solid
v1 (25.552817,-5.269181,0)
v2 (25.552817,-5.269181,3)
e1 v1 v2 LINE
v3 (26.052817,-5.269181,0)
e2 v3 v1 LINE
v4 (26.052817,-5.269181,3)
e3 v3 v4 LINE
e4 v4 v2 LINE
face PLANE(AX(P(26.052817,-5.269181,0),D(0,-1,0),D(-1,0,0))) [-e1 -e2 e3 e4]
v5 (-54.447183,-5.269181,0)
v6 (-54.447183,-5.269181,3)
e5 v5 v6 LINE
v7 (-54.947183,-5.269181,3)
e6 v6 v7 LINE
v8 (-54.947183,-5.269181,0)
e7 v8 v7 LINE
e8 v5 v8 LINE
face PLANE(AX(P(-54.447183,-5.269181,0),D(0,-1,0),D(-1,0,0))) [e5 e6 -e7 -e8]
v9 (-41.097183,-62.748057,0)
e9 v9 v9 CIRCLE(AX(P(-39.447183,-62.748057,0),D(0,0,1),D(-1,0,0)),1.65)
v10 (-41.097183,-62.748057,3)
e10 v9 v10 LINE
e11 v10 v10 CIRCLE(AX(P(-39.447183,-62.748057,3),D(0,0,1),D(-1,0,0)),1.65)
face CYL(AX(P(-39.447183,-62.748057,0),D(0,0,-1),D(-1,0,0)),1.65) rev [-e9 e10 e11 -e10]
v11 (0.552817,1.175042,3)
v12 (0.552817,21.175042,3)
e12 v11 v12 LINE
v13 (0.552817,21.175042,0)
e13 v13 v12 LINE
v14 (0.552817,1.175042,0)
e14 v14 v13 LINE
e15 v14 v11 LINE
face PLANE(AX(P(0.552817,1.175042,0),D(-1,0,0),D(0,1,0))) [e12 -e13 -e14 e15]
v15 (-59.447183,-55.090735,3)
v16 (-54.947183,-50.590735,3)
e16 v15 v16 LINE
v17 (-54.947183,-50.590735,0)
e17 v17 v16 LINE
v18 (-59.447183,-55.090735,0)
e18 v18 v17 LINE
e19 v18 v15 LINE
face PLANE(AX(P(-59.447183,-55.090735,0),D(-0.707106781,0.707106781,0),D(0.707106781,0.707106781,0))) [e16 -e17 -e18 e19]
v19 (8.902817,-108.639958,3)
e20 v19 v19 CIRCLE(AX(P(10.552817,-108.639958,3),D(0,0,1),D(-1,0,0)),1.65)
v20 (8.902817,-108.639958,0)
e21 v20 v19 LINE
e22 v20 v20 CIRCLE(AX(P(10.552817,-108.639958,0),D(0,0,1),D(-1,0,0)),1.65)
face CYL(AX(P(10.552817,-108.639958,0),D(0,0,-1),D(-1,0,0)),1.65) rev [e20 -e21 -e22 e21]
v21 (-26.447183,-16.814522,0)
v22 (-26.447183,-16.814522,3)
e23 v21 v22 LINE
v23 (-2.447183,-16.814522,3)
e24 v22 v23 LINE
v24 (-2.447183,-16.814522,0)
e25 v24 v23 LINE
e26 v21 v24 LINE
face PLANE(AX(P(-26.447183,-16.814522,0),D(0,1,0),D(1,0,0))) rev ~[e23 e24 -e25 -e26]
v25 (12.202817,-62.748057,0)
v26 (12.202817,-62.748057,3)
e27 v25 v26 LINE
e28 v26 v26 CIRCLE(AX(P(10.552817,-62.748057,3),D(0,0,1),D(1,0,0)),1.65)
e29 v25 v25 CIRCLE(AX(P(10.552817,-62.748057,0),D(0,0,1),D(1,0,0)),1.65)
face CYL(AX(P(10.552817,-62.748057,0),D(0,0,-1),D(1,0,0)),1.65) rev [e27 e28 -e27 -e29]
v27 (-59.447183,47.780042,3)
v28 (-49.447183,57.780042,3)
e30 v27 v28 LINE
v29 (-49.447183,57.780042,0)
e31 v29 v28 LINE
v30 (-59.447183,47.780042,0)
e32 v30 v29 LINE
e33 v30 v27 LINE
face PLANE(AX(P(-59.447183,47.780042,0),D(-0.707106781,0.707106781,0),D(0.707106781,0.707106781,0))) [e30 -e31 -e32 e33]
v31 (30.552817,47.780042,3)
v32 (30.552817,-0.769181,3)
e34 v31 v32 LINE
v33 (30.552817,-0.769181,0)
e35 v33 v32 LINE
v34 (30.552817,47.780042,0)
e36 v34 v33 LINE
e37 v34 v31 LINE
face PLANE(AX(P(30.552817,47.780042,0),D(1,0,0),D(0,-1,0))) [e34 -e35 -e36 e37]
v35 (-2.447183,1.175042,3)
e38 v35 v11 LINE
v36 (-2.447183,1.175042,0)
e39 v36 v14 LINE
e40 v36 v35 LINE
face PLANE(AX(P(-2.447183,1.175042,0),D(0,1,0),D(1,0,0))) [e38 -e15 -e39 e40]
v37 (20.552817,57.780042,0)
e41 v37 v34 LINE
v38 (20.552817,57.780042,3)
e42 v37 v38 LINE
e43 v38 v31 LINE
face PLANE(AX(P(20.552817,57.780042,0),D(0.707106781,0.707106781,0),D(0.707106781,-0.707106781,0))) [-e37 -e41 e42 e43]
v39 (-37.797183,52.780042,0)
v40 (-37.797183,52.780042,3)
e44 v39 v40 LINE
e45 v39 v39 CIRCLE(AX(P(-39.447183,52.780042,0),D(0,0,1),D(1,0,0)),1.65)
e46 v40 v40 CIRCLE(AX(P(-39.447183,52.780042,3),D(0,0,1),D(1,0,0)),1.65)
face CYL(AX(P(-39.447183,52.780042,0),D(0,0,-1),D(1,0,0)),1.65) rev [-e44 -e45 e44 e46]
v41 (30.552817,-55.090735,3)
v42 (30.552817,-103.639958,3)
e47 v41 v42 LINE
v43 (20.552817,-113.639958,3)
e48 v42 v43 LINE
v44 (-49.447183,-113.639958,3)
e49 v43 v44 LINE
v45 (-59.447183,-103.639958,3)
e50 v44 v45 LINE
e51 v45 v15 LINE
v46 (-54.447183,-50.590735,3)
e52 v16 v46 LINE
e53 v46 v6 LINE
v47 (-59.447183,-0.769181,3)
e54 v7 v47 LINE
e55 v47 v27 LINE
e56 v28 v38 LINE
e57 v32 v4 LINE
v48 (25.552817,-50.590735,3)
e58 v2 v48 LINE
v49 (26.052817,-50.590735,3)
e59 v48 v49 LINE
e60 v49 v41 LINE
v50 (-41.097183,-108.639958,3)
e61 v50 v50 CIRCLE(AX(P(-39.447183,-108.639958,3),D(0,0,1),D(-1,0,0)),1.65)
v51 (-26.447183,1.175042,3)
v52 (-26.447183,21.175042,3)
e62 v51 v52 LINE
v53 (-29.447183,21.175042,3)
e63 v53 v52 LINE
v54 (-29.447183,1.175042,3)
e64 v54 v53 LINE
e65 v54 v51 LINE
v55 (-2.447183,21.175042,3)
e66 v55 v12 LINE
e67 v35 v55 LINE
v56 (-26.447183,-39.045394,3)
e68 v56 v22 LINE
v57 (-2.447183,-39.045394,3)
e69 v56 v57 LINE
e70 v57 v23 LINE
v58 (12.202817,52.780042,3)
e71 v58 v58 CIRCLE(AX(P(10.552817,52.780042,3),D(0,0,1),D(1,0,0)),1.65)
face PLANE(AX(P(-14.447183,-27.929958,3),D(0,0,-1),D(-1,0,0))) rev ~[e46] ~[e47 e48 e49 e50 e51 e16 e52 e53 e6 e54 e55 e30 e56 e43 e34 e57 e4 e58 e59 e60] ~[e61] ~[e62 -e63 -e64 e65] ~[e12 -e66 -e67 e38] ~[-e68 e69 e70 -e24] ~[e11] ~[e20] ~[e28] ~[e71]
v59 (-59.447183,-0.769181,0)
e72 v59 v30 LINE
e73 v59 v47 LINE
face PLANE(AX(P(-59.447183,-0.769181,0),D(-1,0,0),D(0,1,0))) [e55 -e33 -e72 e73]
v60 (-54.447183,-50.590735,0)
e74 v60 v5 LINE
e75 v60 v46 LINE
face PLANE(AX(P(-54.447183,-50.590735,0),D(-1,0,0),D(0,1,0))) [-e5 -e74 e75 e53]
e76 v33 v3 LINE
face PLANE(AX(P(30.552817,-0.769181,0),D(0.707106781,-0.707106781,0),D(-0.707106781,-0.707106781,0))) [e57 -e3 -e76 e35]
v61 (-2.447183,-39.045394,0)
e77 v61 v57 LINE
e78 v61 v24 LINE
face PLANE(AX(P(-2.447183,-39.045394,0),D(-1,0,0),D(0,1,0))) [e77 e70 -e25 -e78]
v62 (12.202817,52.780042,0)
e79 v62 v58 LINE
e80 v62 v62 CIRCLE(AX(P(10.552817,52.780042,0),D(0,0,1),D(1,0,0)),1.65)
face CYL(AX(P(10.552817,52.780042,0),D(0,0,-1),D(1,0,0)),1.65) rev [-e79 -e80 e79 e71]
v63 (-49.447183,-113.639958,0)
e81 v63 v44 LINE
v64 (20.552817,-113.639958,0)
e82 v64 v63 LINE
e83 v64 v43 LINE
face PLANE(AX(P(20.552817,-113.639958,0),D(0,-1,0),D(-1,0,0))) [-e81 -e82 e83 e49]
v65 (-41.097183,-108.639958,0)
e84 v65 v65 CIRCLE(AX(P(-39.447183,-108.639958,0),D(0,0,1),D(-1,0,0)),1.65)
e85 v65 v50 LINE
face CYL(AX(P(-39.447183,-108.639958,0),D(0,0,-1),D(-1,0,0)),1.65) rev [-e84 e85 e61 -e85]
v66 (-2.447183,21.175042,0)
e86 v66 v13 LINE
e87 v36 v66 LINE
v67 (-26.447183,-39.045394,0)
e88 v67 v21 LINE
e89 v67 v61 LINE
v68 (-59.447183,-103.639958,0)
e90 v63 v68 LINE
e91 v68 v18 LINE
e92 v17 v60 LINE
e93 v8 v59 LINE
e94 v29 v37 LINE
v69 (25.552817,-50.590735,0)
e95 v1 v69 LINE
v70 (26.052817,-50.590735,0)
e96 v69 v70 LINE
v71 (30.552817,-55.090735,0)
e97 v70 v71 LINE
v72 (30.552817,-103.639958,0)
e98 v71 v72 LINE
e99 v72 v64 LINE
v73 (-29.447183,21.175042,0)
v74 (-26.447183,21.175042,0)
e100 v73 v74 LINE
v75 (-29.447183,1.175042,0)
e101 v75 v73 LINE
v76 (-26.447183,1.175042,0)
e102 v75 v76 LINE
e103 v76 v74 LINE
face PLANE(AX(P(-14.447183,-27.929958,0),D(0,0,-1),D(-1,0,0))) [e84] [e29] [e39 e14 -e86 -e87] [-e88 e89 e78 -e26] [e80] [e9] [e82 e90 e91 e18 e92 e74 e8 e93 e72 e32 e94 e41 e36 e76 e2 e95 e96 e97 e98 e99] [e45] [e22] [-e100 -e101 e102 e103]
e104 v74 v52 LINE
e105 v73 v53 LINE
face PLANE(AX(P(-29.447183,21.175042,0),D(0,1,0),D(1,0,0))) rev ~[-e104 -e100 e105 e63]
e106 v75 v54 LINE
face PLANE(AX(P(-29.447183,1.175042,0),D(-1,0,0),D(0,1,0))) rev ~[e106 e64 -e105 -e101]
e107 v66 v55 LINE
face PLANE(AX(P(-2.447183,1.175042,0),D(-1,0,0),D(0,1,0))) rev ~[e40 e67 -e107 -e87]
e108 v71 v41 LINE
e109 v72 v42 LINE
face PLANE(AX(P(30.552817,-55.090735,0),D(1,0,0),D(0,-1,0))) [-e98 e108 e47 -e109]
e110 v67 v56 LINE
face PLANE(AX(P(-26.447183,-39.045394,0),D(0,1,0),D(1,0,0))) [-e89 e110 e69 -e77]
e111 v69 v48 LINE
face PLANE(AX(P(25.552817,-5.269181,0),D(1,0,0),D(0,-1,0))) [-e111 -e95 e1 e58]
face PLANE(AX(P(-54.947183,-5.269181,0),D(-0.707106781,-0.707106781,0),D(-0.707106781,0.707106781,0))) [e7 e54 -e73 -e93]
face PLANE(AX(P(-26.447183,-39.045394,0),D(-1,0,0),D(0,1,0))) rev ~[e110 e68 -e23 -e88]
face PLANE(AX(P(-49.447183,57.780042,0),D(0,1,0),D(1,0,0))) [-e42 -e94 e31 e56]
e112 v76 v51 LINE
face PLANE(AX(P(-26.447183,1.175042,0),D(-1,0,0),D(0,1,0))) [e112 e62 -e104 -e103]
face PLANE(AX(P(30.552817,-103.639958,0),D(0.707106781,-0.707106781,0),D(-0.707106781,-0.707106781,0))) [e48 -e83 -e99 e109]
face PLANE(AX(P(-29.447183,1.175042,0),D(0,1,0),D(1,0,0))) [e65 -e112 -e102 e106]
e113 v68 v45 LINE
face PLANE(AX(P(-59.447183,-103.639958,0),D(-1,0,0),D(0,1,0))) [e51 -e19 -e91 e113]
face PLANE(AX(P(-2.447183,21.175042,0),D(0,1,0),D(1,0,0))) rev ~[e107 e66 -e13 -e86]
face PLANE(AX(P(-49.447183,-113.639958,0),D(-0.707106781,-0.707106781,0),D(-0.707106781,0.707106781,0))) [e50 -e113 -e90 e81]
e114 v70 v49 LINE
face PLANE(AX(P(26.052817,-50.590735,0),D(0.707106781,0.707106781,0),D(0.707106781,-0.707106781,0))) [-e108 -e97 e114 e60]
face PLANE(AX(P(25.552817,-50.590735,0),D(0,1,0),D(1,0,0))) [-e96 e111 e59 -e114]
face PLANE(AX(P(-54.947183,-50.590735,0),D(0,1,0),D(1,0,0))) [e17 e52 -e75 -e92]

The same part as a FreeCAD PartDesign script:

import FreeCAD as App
import Part
import Sketcher
from FreeCAD import Vector
Q = App.Units.Quantity

doc = App.newDocument("Part")
body = doc.addObject("PartDesign::Body", "Body")

sketch1 = body.newObject("Sketcher::SketchObject", "Sketch")
sketch1.AttachmentSupport = (doc.getObject("XY_Plane"), [""])
sketch1.MapMode = "FlatFace"
sketch1.addGeometry([
    Part.LineSegment(Vector(-49.4, 57.8, 0), Vector(-59.4, 47.8, 0)),
    Part.LineSegment(Vector(-59.4, 47.8, 0), Vector(-59.4, -0.8, 0)),
    Part.LineSegment(Vector(-59.4, -0.8, 0), Vector(-54.9, -5.3, 0)),
    Part.LineSegment(Vector(-54.9, -5.3, 0), Vector(-54.4, -5.3, 0)),
    Part.LineSegment(Vector(-54.4, -5.3, 0), Vector(-54.4, -50.6, 0)),
    Part.LineSegment(Vector(-54.4, -50.6, 0), Vector(-54.9, -50.6, 0)),
    Part.LineSegment(Vector(-54.9, -50.6, 0), Vector(-59.4, -55.1, 0)),
    Part.LineSegment(Vector(-59.4, -55.1, 0), Vector(-59.4, -103.6, 0)),
    Part.LineSegment(Vector(-59.4, -103.6, 0), Vector(-49.4, -113.6, 0)),
    Part.LineSegment(Vector(-49.4, -113.6, 0), Vector(20.6, -113.6, 0)),
    Part.LineSegment(Vector(20.6, -113.6, 0), Vector(30.6, -103.6, 0)),
    Part.LineSegment(Vector(30.6, -103.6, 0), Vector(30.6, -55.1, 0)),
    Part.LineSegment(Vector(30.6, -55.1, 0), Vector(26.1, -50.6, 0)),
    Part.LineSegment(Vector(26.1, -50.6, 0), Vector(25.6, -50.6, 0)),
    Part.LineSegment(Vector(25.6, -50.6, 0), Vector(25.6, -5.3, 0)),
    Part.LineSegment(Vector(25.6, -5.3, 0), Vector(26.1, -5.3, 0)),
    Part.LineSegment(Vector(26.1, -5.3, 0), Vector(30.6, -0.8, 0)),
    Part.LineSegment(Vector(30.6, -0.8, 0), Vector(30.6, 47.8, 0)),
    Part.LineSegment(Vector(30.6, 47.8, 0), Vector(20.6, 57.8, 0)),
    Part.LineSegment(Vector(20.6, 57.8, 0), Vector(-49.4, 57.8, 0)),
    Part.Circle(Vector(10.6, -108.6, 0), Vector(0, 0, 1), 1.6),
    Part.Circle(Vector(10.6, -62.7, 0), Vector(0, 0, 1), 1.6),
    Part.Circle(Vector(-39.4, -108.6, 0), Vector(0, 0, 1), 1.6),
    Part.Circle(Vector(-39.4, -62.7, 0), Vector(0, 0, 1), 1.6),
    Part.LineSegment(Vector(-2.4, 1.2, 0), Vector(-2.4, 21.2, 0)),
    Part.LineSegment(Vector(-2.4, 21.2, 0), Vector(0.6, 21.2, 0)),
    Part.LineSegment(Vector(0.6, 21.2, 0), Vector(0.6, 1.2, 0)),
    Part.LineSegment(Vector(0.6, 1.2, 0), Vector(-2.4, 1.2, 0)),
    Part.Circle(Vector(10.6, 52.8, 0), Vector(0, 0, 1), 1.6),
    Part.LineSegment(Vector(-26.4, -39, 0), Vector(-26.4, -16.8, 0)),
    Part.LineSegment(Vector(-26.4, -16.8, 0), Vector(-2.4, -16.8, 0)),
    Part.LineSegment(Vector(-2.4, -16.8, 0), Vector(-2.4, -39, 0)),
    Part.LineSegment(Vector(-2.4, -39, 0), Vector(-26.4, -39, 0)),
    Part.LineSegment(Vector(-29.4, 1.2, 0), Vector(-29.4, 21.2, 0)),
    Part.LineSegment(Vector(-29.4, 21.2, 0), Vector(-26.4, 21.2, 0)),
    Part.LineSegment(Vector(-26.4, 21.2, 0), Vector(-26.4, 1.2, 0)),
    Part.LineSegment(Vector(-26.4, 1.2, 0), Vector(-29.4, 1.2, 0)),
    Part.Circle(Vector(-39.4, 52.8, 0), Vector(0, 0, 1), 1.6),
], False)
sketch1.addConstraint([
    Sketcher.Constraint("Coincident", 0, 2, 1, 1),
    Sketcher.Constraint("Coincident", 1, 2, 2, 1),
    Sketcher.Constraint("Coincident", 2, 2, 3, 1),
    Sketcher.Constraint("Coincident", 3, 2, 4, 1),
    Sketcher.Constraint("Coincident", 4, 2, 5, 1),
    Sketcher.Constraint("Coincident", 5, 2, 6, 1),
    Sketcher.Constraint("Coincident", 6, 2, 7, 1),
    Sketcher.Constraint("Coincident", 7, 2, 8, 1),
    Sketcher.Constraint("Coincident", 8, 2, 9, 1),
    Sketcher.Constraint("Coincident", 9, 2, 10, 1),
    Sketcher.Constraint("Coincident", 10, 2, 11, 1),
    Sketcher.Constraint("Coincident", 11, 2, 12, 1),
    Sketcher.Constraint("Coincident", 12, 2, 13, 1),
    Sketcher.Constraint("Coincident", 13, 2, 14, 1),
    Sketcher.Constraint("Coincident", 14, 2, 15, 1),
    Sketcher.Constraint("Coincident", 15, 2, 16, 1),
    Sketcher.Constraint("Coincident", 16, 2, 17, 1),
    Sketcher.Constraint("Coincident", 17, 2, 18, 1),
    Sketcher.Constraint("Coincident", 18, 2, 19, 1),
    Sketcher.Constraint("Coincident", 19, 2, 0, 1),
    Sketcher.Constraint("Coincident", 24, 2, 25, 1),
    Sketcher.Constraint("Coincident", 25, 2, 26, 1),
    Sketcher.Constraint("Coincident", 26, 2, 27, 1),
    Sketcher.Constraint("Coincident", 27, 2, 24, 1),
    Sketcher.Constraint("Coincident", 29, 2, 30, 1),
    Sketcher.Constraint("Coincident", 30, 2, 31, 1),
    Sketcher.Constraint("Coincident", 31, 2, 32, 1),
    Sketcher.Constraint("Coincident", 32, 2, 29, 1),
    Sketcher.Constraint("Coincident", 33, 2, 34, 1),
    Sketcher.Constraint("Coincident", 34, 2, 35, 1),
    Sketcher.Constraint("Coincident", 35, 2, 36, 1),
    Sketcher.Constraint("Coincident", 36, 2, 33, 1),
    Sketcher.Constraint("Vertical", 1),
    Sketcher.Constraint("Horizontal", 3),
    Sketcher.Constraint("Vertical", 4),
    Sketcher.Constraint("Horizontal", 5),
    Sketcher.Constraint("Vertical", 7),
    Sketcher.Constraint("Horizontal", 9),
    Sketcher.Constraint("Vertical", 11),
    Sketcher.Constraint("Horizontal", 13),
    Sketcher.Constraint("Vertical", 14),
    Sketcher.Constraint("Horizontal", 15),
    Sketcher.Constraint("Vertical", 17),
    Sketcher.Constraint("Horizontal", 19),
    Sketcher.Constraint("Vertical", 24),
    Sketcher.Constraint("Horizontal", 25),
    Sketcher.Constraint("Vertical", 26),
    Sketcher.Constraint("Horizontal", 27),
    Sketcher.Constraint("Vertical", 29),
    Sketcher.Constraint("Horizontal", 30),
    Sketcher.Constraint("Vertical", 31),
    Sketcher.Constraint("Horizontal", 32),
    Sketcher.Constraint("Vertical", 33),
    Sketcher.Constraint("Horizontal", 34),
    Sketcher.Constraint("Vertical", 35),
    Sketcher.Constraint("Horizontal", 36),
    Sketcher.Constraint("Equal", 20, 21),
    Sketcher.Constraint("Equal", 21, 22),
    Sketcher.Constraint("Equal", 22, 23),
    Sketcher.Constraint("Equal", 23, 28),
    Sketcher.Constraint("Equal", 28, 37),
    Sketcher.Constraint("Perpendicular", 0, 2),
    Sketcher.Constraint("Perpendicular", 2, 6),
    Sketcher.Constraint("Perpendicular", 6, 8),
    Sketcher.Constraint("Perpendicular", 8, 10),
    Sketcher.Constraint("Perpendicular", 10, 12),
    Sketcher.Constraint("Perpendicular", 12, 16),
    Sketcher.Constraint("Perpendicular", 16, 18),
    Sketcher.Constraint("Horizontal", 20, 3, 22, 3),
    Sketcher.Constraint("Horizontal", 21, 3, 23, 3),
    Sketcher.Constraint("Horizontal", 28, 3, 37, 3),
    Sketcher.Constraint("Horizontal", 7, 2, 10, 2),
    Sketcher.Constraint("Horizontal", 6, 2, 11, 2),
    Sketcher.Constraint("Horizontal", 5, 2, 12, 2),
    Sketcher.Constraint("Horizontal", 3, 2, 14, 2),
    Sketcher.Constraint("Horizontal", 1, 2, 16, 2),
    Sketcher.Constraint("Horizontal", 0, 2, 17, 2),
    Sketcher.Constraint("Horizontal", 25, 2, 33, 2),
    Sketcher.Constraint("Horizontal", 27, 2, 35, 2),
    Sketcher.Constraint("Vertical", 20, 3, 21, 3),
    Sketcher.Constraint("Vertical", 22, 3, 23, 3),
    Sketcher.Constraint("Vertical", 21, 3, 28, 3),
    Sketcher.Constraint("Vertical", 23, 3, 37, 3),
    Sketcher.Constraint("Vertical", 2, 2, 5, 2),
    Sketcher.Constraint("Vertical", 1, 2, 6, 2),
    Sketcher.Constraint("Vertical", 12, 2, 15, 2),
    Sketcher.Constraint("Vertical", 11, 2, 16, 2),
    Sketcher.Constraint("Vertical", 9, 2, 18, 2),
    Sketcher.Constraint("Vertical", 27, 2, 30, 2),
    Sketcher.Constraint("Vertical", 32, 2, 34, 2),
    Sketcher.Constraint("Equal", 5, 13),
    Sketcher.Constraint("Equal", 27, 34),
    Sketcher.Constraint("Equal", 1, 7),
    Sketcher.Constraint("Diameter", 20, Q("3.3 mm")),
    Sketcher.Constraint("DistanceX", 9, 1, 9, 2, Q("70 mm")),
    Sketcher.Constraint("DistanceX", 25, 1, 25, 2, Q("3 mm")),
    Sketcher.Constraint("DistanceX", 30, 1, 30, 2, Q("24 mm")),
    Sketcher.Constraint("DistanceY", 24, 1, 24, 2, Q("20 mm")),
    Sketcher.Constraint("DistanceX", 3, 1, 3, 2, Q("0.5 mm")),
    Sketcher.Constraint("DistanceX", 22, 3, 20, 3, Q("50 mm")),
    Sketcher.Constraint("DistanceX", 0, 2, 37, 3, Q("20 mm")),
    Sketcher.Constraint("DistanceY", 0, 2, 37, 3, Q("5 mm")),
    Sketcher.Constraint("DistanceX", 1, 2, 3, 2, Q("5 mm")),
    Sketcher.Constraint("DistanceY", 22, 3, 7, 2, Q("5 mm")),
    Sketcher.Constraint("DistanceX", 8, 2, 22, 3, Q("10 mm")),
    Sketcher.Constraint("DistanceX", 24, 2, 28, 3, Q("13 mm")),
    Sketcher.Constraint("DistanceY", 20, 3, 28, 3, Q("161.42 mm")),
    Sketcher.Constraint("DistanceY", 24, 2, 28, 3, Q("31.605 mm")),
    Sketcher.Constraint("DistanceY", 20, 3, 21, 3, Q("45.891901 mm")),
    Sketcher.Constraint("DistanceY", 1, 2, 1, 1, Q("48.549223 mm")),
    Sketcher.Constraint("DistanceY", 29, 1, 29, 2, Q("22.230873 mm")),
    Sketcher.Constraint("DistanceY", 20, 3, -1, 1, Q("108.639958 mm")),
    Sketcher.Constraint("DistanceY", 29, 2, -1, 1, Q("16.814522 mm")),
    Sketcher.Constraint("DistanceX", -1, 1, 20, 3, Q("10.552817 mm")),
])
pad1 = body.newObject("PartDesign::Pad", "Pad")
pad1.Profile = sketch1
pad1.Length = 3

doc.recompute()
